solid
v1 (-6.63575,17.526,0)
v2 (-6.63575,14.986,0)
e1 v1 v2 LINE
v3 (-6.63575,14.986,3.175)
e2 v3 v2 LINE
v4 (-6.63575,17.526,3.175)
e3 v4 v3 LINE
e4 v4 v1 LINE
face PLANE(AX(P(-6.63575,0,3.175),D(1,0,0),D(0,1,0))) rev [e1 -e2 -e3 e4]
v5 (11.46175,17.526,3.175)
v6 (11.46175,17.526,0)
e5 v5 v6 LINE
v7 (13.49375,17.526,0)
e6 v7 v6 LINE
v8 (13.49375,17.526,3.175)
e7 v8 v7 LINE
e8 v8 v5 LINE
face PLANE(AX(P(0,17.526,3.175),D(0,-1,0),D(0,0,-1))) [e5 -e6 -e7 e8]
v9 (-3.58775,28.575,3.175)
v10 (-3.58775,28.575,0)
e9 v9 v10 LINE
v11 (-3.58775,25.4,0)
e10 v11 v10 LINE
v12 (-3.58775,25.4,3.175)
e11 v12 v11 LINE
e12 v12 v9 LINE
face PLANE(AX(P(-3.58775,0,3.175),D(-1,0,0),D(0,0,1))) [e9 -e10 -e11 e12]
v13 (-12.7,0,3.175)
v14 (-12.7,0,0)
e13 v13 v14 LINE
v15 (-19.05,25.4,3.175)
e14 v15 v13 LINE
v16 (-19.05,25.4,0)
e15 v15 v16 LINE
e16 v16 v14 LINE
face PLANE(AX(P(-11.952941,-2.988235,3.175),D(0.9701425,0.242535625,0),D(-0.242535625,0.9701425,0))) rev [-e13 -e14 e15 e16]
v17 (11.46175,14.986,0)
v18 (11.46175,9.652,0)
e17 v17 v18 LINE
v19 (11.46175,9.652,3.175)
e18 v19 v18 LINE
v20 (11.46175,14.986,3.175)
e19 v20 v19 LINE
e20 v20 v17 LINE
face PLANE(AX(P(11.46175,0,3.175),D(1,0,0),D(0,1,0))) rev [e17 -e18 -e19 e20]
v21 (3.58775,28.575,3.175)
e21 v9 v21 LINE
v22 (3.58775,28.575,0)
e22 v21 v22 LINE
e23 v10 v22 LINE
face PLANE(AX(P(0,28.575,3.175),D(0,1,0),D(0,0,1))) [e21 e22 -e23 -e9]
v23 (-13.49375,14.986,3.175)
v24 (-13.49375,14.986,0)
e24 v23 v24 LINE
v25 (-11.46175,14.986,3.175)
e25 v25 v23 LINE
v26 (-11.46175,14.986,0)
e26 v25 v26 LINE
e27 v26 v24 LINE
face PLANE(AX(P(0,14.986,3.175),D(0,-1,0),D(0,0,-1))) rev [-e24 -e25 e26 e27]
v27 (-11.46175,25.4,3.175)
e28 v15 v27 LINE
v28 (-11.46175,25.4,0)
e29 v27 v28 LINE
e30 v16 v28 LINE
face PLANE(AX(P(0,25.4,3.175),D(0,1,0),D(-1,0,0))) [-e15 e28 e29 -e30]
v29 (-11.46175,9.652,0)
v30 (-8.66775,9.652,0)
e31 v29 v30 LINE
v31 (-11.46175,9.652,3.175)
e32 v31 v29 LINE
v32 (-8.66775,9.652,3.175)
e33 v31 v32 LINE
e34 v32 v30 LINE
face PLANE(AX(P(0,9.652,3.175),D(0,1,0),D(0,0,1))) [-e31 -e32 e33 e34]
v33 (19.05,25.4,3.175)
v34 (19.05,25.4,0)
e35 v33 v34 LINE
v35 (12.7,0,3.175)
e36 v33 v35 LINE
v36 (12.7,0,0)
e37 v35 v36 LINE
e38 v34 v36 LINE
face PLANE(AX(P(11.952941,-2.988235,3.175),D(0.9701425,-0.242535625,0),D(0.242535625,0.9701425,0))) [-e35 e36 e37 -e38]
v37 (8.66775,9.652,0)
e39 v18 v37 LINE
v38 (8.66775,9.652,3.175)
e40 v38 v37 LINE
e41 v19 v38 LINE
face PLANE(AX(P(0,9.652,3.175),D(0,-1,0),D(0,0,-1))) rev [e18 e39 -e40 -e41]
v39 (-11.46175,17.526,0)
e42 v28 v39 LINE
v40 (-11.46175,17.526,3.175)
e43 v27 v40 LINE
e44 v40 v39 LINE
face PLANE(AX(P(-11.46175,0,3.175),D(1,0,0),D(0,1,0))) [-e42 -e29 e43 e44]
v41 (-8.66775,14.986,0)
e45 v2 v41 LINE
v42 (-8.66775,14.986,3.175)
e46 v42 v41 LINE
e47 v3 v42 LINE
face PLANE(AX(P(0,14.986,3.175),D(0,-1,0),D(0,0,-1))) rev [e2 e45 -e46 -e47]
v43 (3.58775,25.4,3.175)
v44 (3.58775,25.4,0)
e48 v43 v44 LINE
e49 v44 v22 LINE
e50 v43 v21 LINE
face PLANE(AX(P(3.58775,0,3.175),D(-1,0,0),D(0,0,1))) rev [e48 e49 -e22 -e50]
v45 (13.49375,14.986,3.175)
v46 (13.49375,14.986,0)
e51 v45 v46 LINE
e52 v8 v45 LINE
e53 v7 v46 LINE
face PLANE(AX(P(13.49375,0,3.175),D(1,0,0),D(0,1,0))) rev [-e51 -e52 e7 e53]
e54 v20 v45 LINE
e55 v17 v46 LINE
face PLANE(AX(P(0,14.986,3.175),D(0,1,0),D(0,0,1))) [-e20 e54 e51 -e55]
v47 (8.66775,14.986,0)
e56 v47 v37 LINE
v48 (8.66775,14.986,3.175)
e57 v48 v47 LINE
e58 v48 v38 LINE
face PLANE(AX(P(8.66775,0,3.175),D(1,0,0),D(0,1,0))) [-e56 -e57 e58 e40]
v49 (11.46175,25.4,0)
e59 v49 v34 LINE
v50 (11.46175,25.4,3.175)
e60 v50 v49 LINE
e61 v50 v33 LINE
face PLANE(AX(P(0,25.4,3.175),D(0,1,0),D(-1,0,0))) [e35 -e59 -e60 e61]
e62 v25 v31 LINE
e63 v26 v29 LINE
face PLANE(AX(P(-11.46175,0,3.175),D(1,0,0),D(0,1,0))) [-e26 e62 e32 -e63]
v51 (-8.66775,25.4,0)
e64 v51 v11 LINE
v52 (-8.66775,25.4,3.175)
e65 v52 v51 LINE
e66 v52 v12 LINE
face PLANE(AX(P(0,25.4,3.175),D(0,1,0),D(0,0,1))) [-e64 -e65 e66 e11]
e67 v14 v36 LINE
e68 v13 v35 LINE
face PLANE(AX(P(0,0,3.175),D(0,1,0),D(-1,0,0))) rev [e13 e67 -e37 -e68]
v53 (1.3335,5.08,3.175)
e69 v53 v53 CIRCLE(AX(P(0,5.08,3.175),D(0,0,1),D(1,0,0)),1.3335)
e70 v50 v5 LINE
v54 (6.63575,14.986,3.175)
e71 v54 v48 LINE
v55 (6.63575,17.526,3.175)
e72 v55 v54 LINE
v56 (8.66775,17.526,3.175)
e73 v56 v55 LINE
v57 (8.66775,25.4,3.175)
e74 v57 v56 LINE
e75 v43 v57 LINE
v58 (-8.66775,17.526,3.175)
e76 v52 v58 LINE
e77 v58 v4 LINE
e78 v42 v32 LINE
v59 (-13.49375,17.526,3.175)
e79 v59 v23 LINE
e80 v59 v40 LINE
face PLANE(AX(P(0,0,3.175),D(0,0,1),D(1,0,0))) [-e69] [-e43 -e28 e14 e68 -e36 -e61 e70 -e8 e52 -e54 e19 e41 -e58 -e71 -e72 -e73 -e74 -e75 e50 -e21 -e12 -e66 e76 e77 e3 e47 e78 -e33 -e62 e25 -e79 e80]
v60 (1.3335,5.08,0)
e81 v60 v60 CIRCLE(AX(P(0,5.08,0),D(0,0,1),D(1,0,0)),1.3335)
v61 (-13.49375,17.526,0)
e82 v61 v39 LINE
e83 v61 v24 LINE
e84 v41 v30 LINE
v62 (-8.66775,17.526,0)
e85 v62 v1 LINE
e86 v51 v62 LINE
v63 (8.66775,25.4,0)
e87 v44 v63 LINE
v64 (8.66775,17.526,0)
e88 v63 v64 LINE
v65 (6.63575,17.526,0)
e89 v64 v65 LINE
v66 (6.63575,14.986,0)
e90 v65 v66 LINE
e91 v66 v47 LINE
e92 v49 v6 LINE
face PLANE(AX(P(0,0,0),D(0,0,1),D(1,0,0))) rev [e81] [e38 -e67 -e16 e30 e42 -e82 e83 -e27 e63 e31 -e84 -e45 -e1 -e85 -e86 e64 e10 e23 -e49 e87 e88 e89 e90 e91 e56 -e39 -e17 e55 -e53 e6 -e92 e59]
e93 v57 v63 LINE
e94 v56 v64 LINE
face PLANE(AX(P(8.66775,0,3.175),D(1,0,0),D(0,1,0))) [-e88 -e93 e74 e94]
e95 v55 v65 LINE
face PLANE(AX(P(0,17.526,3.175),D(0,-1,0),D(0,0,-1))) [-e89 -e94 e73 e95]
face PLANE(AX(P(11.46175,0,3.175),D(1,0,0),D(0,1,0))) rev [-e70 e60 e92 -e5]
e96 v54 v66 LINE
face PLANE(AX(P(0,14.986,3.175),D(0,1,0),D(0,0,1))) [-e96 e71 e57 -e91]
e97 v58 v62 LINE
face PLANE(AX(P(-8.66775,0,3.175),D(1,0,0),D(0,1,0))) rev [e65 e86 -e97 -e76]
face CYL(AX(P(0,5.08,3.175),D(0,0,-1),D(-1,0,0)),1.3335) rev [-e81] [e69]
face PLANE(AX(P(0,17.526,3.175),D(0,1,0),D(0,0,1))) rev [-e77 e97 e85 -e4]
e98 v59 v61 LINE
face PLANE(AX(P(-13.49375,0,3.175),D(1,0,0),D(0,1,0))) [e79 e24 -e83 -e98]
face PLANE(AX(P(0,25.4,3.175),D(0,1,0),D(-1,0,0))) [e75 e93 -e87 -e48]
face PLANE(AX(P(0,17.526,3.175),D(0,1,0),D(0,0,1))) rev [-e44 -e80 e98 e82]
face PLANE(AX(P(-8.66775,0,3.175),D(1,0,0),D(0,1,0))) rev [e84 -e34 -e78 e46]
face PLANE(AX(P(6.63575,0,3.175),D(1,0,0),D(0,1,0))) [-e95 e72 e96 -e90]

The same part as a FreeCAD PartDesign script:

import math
import FreeCAD as App
import Part
import Sketcher

V = App.Vector
Q = App.Units.Quantity

doc = App.newDocument("Part")
body = doc.addObject("PartDesign::Body", "Body")

# Sketch on XY plane
sketch1 = body.newObject("Sketcher::SketchObject", "Sketch")
sketch1.AttachmentSupport = (doc.getObject("XY_Plane"), [""])
sketch1.MapMode = "FlatFace"
sketch1.addGeometry([
    Part.LineSegment(V(12.7, 0, 0), V(19.1, 25.4, 0)),  # 0
    Part.LineSegment(V(19.1, 25.4, 0), V(11.5, 25.4, 0)),  # 1
    Part.LineSegment(V(11.5, 25.4, 0), V(11.5, 17.5, 0)),  # 2
    Part.LineSegment(V(11.5, 17.5, 0), V(13.5, 17.5, 0)),  # 3
    Part.LineSegment(V(13.5, 17.5, 0), V(13.5, 15, 0)),  # 4
    Part.LineSegment(V(13.5, 15, 0), V(11.5, 15, 0)),  # 5
    Part.LineSegment(V(11.5, 15, 0), V(11.5, 9.7, 0)),  # 6
    Part.LineSegment(V(11.5, 9.7, 0), V(8.7, 9.7, 0)),  # 7
    Part.LineSegment(V(8.7, 9.7, 0), V(8.7, 15, 0)),  # 8
    Part.LineSegment(V(8.7, 15, 0), V(6.6, 15, 0)),  # 9
    Part.LineSegment(V(6.6, 15, 0), V(6.6, 17.5, 0)),  # 10
    Part.LineSegment(V(6.6, 17.5, 0), V(8.7, 17.5, 0)),  # 11
    Part.LineSegment(V(8.7, 17.5, 0), V(8.7, 25.4, 0)),  # 12
    Part.LineSegment(V(8.7, 25.4, 0), V(3.6, 25.4, 0)),  # 13
    Part.LineSegment(V(3.6, 25.4, 0), V(3.6, 28.6, 0)),  # 14
    Part.LineSegment(V(3.6, 28.6, 0), V(-3.6, 28.6, 0)),  # 15
    Part.LineSegment(V(-3.6, 28.6, 0), V(-3.6, 25.4, 0)),  # 16
    Part.LineSegment(V(-3.6, 25.4, 0), V(-8.7, 25.4, 0)),  # 17
    Part.LineSegment(V(-8.7, 25.4, 0), V(-8.7, 17.5, 0)),  # 18
    Part.LineSegment(V(-8.7, 17.5, 0), V(-6.6, 17.5, 0)),  # 19
    Part.LineSegment(V(-6.6, 17.5, 0), V(-6.6, 15, 0)),  # 20
    Part.LineSegment(V(-6.6, 15, 0), V(-8.7, 15, 0)),  # 21
    Part.LineSegment(V(-8.7, 15, 0), V(-8.7, 9.7, 0)),  # 22
    Part.LineSegment(V(-8.7, 9.7, 0), V(-11.5, 9.7, 0)),  # 23
    Part.LineSegment(V(-11.5, 9.7, 0), V(-11.5, 15, 0)),  # 24
    Part.LineSegment(V(-11.5, 15, 0), V(-13.5, 15, 0)),  # 25
    Part.LineSegment(V(-13.5, 15, 0), V(-13.5, 17.5, 0)),  # 26
    Part.LineSegment(V(-13.5, 17.5, 0), V(-11.5, 17.5, 0)),  # 27
    Part.LineSegment(V(-11.5, 17.5, 0), V(-11.5, 25.4, 0)),  # 28
    Part.LineSegment(V(-11.5, 25.4, 0), V(-19.1, 25.4, 0)),  # 29
    Part.LineSegment(V(-19.1, 25.4, 0), V(-12.7, 0, 0)),  # 30
    Part.LineSegment(V(-12.7, 0, 0), V(12.7, 0, 0)),  # 31
    Part.ArcOfCircle(Part.Circle(V(0, 5.1, 0), V(0, 0, 1), 1.3), math.radians(0), math.radians(90)),  # 32
    Part.ArcOfCircle(Part.Circle(V(0, 5.1, 0), V(0, 0, 1), 1.3), math.radians(-90), math.radians(0)),  # 33
    Part.ArcOfCircle(Part.Circle(V(0, 5.1, 0), V(0, 0, 1), 1.3), math.radians(90), math.radians(270)),  # 34
], False)
sketch1.addConstraint([
    Sketcher.Constraint("Coincident", 0, 2, 1, 1),
    Sketcher.Constraint("Coincident", 1, 2, 2, 1),
    Sketcher.Constraint("Coincident", 2, 2, 3, 1),
    Sketcher.Constraint("Coincident", 3, 2, 4, 1),
    Sketcher.Constraint("Coincident", 4, 2, 5, 1),
    Sketcher.Constraint("Coincident", 5, 2, 6, 1),
    Sketcher.Constraint("Coincident", 6, 2, 7, 1),
    Sketcher.Constraint("Coincident", 7, 2, 8, 1),
    Sketcher.Constraint("Coincident", 8, 2, 9, 1),
    Sketcher.Constraint("Coincident", 9, 2, 10, 1),
    Sketcher.Constraint("Coincident", 10, 2, 11, 1),
    Sketcher.Constraint("Coincident", 11, 2, 12, 1),
    Sketcher.Constraint("Coincident", 12, 2, 13, 1),
    Sketcher.Constraint("Coincident", 13, 2, 14, 1),
    Sketcher.Constraint("Coincident", 14, 2, 15, 1),
    Sketcher.Constraint("Coincident", 15, 2, 16, 1),
    Sketcher.Constraint("Coincident", 16, 2, 17, 1),
    Sketcher.Constraint("Coincident", 17, 2, 18, 1),
    Sketcher.Constraint("Coincident", 18, 2, 19, 1),
    Sketcher.Constraint("Coincident", 19, 2, 20, 1),
    Sketcher.Constraint("Coincident", 20, 2, 21, 1),
    Sketcher.Constraint("Coincident", 21, 2, 22, 1),
    Sketcher.Constraint("Coincident", 22, 2, 23, 1),
    Sketcher.Constraint("Coincident", 23, 2, 24, 1),
    Sketcher.Constraint("Coincident", 24, 2, 25, 1),
    Sketcher.Constraint("Coincident", 25, 2, 26, 1),
    Sketcher.Constraint("Coincident", 26, 2, 27, 1),
    Sketcher.Constraint("Coincident", 27, 2, 28, 1),
    Sketcher.Constraint("Coincident", 28, 2, 29, 1),
    Sketcher.Constraint("Coincident", 29, 2, 30, 1),
    Sketcher.Constraint("Coincident", 30, 2, 31, 1),
    Sketcher.Constraint("Coincident", 31, 2, 0, 1),
    Sketcher.Constraint("Tangent", 32, 1, 33, 2),
    Sketcher.Constraint("Tangent", 33, 1, 34, 2),
    Sketcher.Constraint("Tangent", 34, 1, 32, 2),
    Sketcher.Constraint("Horizontal", 1),
    Sketcher.Constraint("Vertical", 2),
    Sketcher.Constraint("Horizontal", 3),
    Sketcher.Constraint("Vertical", 4),
    Sketcher.Constraint("Horizontal", 5),
    Sketcher.Constraint("Vertical", 6),
    Sketcher.Constraint("Horizontal", 7),
    Sketcher.Constraint("Vertical", 8),
    Sketcher.Constraint("Horizontal", 9),
    Sketcher.Constraint("Vertical", 10),
    Sketcher.Constraint("Horizontal", 11),
    Sketcher.Constraint("Vertical", 12),
    Sketcher.Constraint("Horizontal", 13),
    Sketcher.Constraint("Vertical", 14),
    Sketcher.Constraint("Horizontal", 15),
    Sketcher.Constraint("Vertical", 16),
    Sketcher.Constraint("Horizontal", 17),
    Sketcher.Constraint("Vertical", 18),
    Sketcher.Constraint("Horizontal", 19),
    Sketcher.Constraint("Vertical", 20),
    Sketcher.Constraint("Horizontal", 21),
    Sketcher.Constraint("Vertical", 22),
    Sketcher.Constraint("Horizontal", 23),
    Sketcher.Constraint("Vertical", 24),
    Sketcher.Constraint("Horizontal", 25),
    Sketcher.Constraint("Vertical", 26),
    Sketcher.Constraint("Horizontal", 27),
    Sketcher.Constraint("Vertical", 28),
    Sketcher.Constraint("Horizontal", 29),
    Sketcher.Constraint("Horizontal", 31),
    Sketcher.Constraint("Symmetric", 30, 2, 31, 2, -1, 1),
    Sketcher.Constraint("Symmetric", 13, 2, 16, 2, -2),
    Sketcher.Constraint("Symmetric", 11, 2, 18, 2, -2),
    Sketcher.Constraint("Symmetric", 9, 2, 20, 2, -2),
    Sketcher.Constraint("Symmetric", 7, 2, 22, 2, -2),
    Sketcher.Constraint("Symmetric", 5, 2, 24, 2, -2),
    Sketcher.Constraint("Symmetric", 3, 2, 26, 2, -2),
    Sketcher.Constraint("Symmetric", 1, 2, 28, 2, -2),
    Sketcher.Constraint("PointOnObject", 32, 3, -2),
    Sketcher.Constraint("PointOnObject", 33, 1, -2),
    Sketcher.Constraint("PointOnObject", 34, 1, -2),
    Sketcher.Constraint("Horizontal", 5, 2, 8, 2),
    Sketcher.Constraint("Horizontal", 3, 2, 10, 2),
    Sketcher.Constraint("Horizontal", 1, 2, 12, 2),
    Sketcher.Constraint("Horizontal", 34, 3, 32, 1),
    Sketcher.Constraint("Vertical", 2, 2, 5, 2),
    Sketcher.Constraint("Vertical", 8, 2, 11, 2),
    Sketcher.Constraint("Equal", 5, 9),
    Sketcher.Constraint("Equal", 1, 29),
    Sketcher.Constraint("DistanceX", 31, 1, 31, 2, Q("1 in")),
    Sketcher.Constraint("DistanceX", 13, 2, 13, 1, Q("0.2 in")),
    Sketcher.Constraint("DistanceY", 4, 2, 4, 1, Q("0.1 in")),
    Sketcher.Constraint("DistanceY", -1, 1, 0, 2, Q("1 in")),
    Sketcher.Constraint("DistanceX", 3, 1, 3, 2, Q("0.08 in")),
    Sketcher.Constraint("DistanceX", 7, 2, 7, 1, Q("0.11 in")),
    Sketcher.Constraint("DistanceY", 2, 2, 2, 1, Q("0.31 in")),
    Sketcher.Constraint("DistanceY", 6, 2, 6, 1, Q("0.21 in")),
    Sketcher.Constraint("DistanceY", -1, 1, 32, 3, Q("0.2 in")),
    Sketcher.Constraint("Radius", 32, Q("0.0525 in")),
    Sketcher.Constraint("DistanceY", 14, 1, 14, 2, Q("0.125 in")),
    Sketcher.Constraint("DistanceX", -1, 1, 0, 2, Q("0.75 in")),
    Sketcher.Constraint("DistanceX", 15, 2, 15, 1, Q("0.2825 in")),
])
pad1 = body.newObject("PartDesign::Pad", "Pad")
pad1.Profile = sketch1
pad1.Length = Q("0.125 in")

doc.recompute()
